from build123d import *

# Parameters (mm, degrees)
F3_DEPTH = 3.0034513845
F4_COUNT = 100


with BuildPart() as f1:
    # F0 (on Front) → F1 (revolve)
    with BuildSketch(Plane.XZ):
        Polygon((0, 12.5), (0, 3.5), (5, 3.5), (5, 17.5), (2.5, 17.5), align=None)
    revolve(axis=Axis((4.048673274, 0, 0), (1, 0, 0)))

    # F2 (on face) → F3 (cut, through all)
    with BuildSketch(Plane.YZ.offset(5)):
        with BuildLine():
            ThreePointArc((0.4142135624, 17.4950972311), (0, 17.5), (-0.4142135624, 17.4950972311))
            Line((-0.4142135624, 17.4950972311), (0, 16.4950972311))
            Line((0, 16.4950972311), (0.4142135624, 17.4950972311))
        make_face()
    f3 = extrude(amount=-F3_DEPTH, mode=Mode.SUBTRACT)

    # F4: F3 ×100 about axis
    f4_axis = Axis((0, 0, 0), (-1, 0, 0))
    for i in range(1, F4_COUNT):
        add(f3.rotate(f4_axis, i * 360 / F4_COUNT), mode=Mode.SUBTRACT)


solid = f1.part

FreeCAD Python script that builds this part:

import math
import FreeCAD as App
import Part
import Sketcher
Q = App.Units.Quantity

doc = App.newDocument("Part")
params = doc.addObject("Spreadsheet::Sheet", "Params")
for row, (alias, value) in enumerate([
    ("sketch1_width", "5 mm"),
    ("sketch1_height", "9 mm"),
    ("sketch1_height2", "14 mm"),
    ("sketch1_width2", "2.5 mm"),
    ("revolution_angle", "360 deg"),
    ("sketch2_radius", "17.5 mm"),
], start=1):
    params.set(f"A{row}", alias)
    params.set(f"B{row}", "=" + value)
    params.setAlias(f"B{row}", alias)

body = doc.addObject("PartDesign::Body", "Body")

sketch1 = doc.addObject("Sketcher::SketchObject", "Sketch")
body.addObject(sketch1)
sketch1.AttachmentSupport = (doc.XZ_Plane, [""])
sketch1.MapMode = "FlatFace"
sketch1.addGeometry([
    Part.LineSegment(App.Vector(0, 12.5, 0), App.Vector(0, 3.5, 0)),
    Part.LineSegment(App.Vector(0, 3.5, 0), App.Vector(5, 3.5, 0)),
    Part.LineSegment(App.Vector(5, 3.5, 0), App.Vector(5, 17.5, 0)),
    Part.LineSegment(App.Vector(5, 17.5, 0), App.Vector(2.5, 17.5, 0)),
    Part.LineSegment(App.Vector(2.5, 17.5, 0), App.Vector(0, 12.5, 0)),
], False)
sketch1.addConstraint([
    Sketcher.Constraint("Coincident", 0, 2, 1, 1),
    Sketcher.Constraint("Coincident", 1, 2, 2, 1),
    Sketcher.Constraint("Coincident", 2, 2, 3, 1),
    Sketcher.Constraint("Coincident", 3, 2, 4, 1),
    Sketcher.Constraint("Coincident", 4, 2, 0, 1),
    Sketcher.Constraint("Vertical", 0),
    Sketcher.Constraint("Horizontal", 1),
    Sketcher.Constraint("Vertical", 2),
    Sketcher.Constraint("Horizontal", 3),
    Sketcher.Constraint("PointOnObject", 0, 2, -2),
    Sketcher.Constraint("DistanceX", 1, 1, 1, 2, 5.0),
    Sketcher.Constraint("DistanceY", 0, 2, 0, 1, 9.0),
    Sketcher.Constraint("DistanceY", 2, 1, 2, 2, 14.0),
    Sketcher.Constraint("DistanceX", 3, 2, 3, 1, 2.5),
    Sketcher.Constraint("DistanceY", -1, 1, 0, 2, 3.5),
])
sketch1.setExpression("Constraints[10]", "Params.sketch1_width")
sketch1.setExpression("Constraints[11]", "Params.sketch1_height")
sketch1.setExpression("Constraints[12]", "Params.sketch1_height2")
sketch1.setExpression("Constraints[13]", "Params.sketch1_width2")
revolution = doc.addObject("PartDesign::Revolution", "Revolution")
body.addObject(revolution)
revolution.Profile = sketch1
revolution.ReferenceAxis = (sketch1, ["H_Axis"])
revolution.setExpression("Angle", "Params.revolution_angle")

sketch2 = doc.addObject("Sketcher::SketchObject", "Sketch001")
body.addObject(sketch2)
sketch2.AttachmentSupport = (doc.YZ_Plane, [""])
sketch2.MapMode = "FlatFace"
sketch2.AttachmentOffset = App.Placement(App.Vector(0, 0, 5), App.Rotation())
sketch2.addGeometry([
    Part.ArcOfCircle(Part.Circle(App.Vector(0, 0, 0), App.Vector(0, 0, 1), 17.5), math.radians(88.64), math.radians(91.36)),
    Part.LineSegment(App.Vector(-0.4, 17.5, 0), App.Vector(0, 16.5, 0)),
    Part.LineSegment(App.Vector(0, 16.5, 0), App.Vector(0.4, 17.5, 0)),
], False)
sketch2.addConstraint([
    Sketcher.Constraint("Coincident", 0, 2, 1, 1),
    Sketcher.Constraint("Coincident", 1, 2, 2, 1),
    Sketcher.Constraint("Coincident", 2, 2, 0, 1),
    Sketcher.Constraint("Coincident", 0, 3, -1, 1),
    Sketcher.Constraint("PointOnObject", 1, 2, -2),
    Sketcher.Constraint("Horizontal", 0, 2, 2, 2),
    Sketcher.Constraint("Radius", 0, 17.5),
    Sketcher.Constraint("Angle", 1, Q("-67.5 deg")),
    Sketcher.Constraint("DistanceY", 1, 2, 0, 2, 1.0),
])
sketch2.setExpression("Constraints[6]", "Params.sketch2_radius")
pocket1 = doc.addObject("PartDesign::Pocket", "Pocket")
body.addObject(pocket1)
pocket1.Profile = sketch2
pocket1.Type = "ThroughAll"
doc.recompute()

polarpattern = doc.addObject("PartDesign::PolarPattern", "PolarPattern")
body.addObject(polarpattern)
polarpattern.Originals = [pocket1]
polarpattern.Axis = (doc.X_Axis, [""])
polarpattern.Angle = 360
polarpattern.Occurrences = 100
body.Tip = polarpattern

doc.recompute()
